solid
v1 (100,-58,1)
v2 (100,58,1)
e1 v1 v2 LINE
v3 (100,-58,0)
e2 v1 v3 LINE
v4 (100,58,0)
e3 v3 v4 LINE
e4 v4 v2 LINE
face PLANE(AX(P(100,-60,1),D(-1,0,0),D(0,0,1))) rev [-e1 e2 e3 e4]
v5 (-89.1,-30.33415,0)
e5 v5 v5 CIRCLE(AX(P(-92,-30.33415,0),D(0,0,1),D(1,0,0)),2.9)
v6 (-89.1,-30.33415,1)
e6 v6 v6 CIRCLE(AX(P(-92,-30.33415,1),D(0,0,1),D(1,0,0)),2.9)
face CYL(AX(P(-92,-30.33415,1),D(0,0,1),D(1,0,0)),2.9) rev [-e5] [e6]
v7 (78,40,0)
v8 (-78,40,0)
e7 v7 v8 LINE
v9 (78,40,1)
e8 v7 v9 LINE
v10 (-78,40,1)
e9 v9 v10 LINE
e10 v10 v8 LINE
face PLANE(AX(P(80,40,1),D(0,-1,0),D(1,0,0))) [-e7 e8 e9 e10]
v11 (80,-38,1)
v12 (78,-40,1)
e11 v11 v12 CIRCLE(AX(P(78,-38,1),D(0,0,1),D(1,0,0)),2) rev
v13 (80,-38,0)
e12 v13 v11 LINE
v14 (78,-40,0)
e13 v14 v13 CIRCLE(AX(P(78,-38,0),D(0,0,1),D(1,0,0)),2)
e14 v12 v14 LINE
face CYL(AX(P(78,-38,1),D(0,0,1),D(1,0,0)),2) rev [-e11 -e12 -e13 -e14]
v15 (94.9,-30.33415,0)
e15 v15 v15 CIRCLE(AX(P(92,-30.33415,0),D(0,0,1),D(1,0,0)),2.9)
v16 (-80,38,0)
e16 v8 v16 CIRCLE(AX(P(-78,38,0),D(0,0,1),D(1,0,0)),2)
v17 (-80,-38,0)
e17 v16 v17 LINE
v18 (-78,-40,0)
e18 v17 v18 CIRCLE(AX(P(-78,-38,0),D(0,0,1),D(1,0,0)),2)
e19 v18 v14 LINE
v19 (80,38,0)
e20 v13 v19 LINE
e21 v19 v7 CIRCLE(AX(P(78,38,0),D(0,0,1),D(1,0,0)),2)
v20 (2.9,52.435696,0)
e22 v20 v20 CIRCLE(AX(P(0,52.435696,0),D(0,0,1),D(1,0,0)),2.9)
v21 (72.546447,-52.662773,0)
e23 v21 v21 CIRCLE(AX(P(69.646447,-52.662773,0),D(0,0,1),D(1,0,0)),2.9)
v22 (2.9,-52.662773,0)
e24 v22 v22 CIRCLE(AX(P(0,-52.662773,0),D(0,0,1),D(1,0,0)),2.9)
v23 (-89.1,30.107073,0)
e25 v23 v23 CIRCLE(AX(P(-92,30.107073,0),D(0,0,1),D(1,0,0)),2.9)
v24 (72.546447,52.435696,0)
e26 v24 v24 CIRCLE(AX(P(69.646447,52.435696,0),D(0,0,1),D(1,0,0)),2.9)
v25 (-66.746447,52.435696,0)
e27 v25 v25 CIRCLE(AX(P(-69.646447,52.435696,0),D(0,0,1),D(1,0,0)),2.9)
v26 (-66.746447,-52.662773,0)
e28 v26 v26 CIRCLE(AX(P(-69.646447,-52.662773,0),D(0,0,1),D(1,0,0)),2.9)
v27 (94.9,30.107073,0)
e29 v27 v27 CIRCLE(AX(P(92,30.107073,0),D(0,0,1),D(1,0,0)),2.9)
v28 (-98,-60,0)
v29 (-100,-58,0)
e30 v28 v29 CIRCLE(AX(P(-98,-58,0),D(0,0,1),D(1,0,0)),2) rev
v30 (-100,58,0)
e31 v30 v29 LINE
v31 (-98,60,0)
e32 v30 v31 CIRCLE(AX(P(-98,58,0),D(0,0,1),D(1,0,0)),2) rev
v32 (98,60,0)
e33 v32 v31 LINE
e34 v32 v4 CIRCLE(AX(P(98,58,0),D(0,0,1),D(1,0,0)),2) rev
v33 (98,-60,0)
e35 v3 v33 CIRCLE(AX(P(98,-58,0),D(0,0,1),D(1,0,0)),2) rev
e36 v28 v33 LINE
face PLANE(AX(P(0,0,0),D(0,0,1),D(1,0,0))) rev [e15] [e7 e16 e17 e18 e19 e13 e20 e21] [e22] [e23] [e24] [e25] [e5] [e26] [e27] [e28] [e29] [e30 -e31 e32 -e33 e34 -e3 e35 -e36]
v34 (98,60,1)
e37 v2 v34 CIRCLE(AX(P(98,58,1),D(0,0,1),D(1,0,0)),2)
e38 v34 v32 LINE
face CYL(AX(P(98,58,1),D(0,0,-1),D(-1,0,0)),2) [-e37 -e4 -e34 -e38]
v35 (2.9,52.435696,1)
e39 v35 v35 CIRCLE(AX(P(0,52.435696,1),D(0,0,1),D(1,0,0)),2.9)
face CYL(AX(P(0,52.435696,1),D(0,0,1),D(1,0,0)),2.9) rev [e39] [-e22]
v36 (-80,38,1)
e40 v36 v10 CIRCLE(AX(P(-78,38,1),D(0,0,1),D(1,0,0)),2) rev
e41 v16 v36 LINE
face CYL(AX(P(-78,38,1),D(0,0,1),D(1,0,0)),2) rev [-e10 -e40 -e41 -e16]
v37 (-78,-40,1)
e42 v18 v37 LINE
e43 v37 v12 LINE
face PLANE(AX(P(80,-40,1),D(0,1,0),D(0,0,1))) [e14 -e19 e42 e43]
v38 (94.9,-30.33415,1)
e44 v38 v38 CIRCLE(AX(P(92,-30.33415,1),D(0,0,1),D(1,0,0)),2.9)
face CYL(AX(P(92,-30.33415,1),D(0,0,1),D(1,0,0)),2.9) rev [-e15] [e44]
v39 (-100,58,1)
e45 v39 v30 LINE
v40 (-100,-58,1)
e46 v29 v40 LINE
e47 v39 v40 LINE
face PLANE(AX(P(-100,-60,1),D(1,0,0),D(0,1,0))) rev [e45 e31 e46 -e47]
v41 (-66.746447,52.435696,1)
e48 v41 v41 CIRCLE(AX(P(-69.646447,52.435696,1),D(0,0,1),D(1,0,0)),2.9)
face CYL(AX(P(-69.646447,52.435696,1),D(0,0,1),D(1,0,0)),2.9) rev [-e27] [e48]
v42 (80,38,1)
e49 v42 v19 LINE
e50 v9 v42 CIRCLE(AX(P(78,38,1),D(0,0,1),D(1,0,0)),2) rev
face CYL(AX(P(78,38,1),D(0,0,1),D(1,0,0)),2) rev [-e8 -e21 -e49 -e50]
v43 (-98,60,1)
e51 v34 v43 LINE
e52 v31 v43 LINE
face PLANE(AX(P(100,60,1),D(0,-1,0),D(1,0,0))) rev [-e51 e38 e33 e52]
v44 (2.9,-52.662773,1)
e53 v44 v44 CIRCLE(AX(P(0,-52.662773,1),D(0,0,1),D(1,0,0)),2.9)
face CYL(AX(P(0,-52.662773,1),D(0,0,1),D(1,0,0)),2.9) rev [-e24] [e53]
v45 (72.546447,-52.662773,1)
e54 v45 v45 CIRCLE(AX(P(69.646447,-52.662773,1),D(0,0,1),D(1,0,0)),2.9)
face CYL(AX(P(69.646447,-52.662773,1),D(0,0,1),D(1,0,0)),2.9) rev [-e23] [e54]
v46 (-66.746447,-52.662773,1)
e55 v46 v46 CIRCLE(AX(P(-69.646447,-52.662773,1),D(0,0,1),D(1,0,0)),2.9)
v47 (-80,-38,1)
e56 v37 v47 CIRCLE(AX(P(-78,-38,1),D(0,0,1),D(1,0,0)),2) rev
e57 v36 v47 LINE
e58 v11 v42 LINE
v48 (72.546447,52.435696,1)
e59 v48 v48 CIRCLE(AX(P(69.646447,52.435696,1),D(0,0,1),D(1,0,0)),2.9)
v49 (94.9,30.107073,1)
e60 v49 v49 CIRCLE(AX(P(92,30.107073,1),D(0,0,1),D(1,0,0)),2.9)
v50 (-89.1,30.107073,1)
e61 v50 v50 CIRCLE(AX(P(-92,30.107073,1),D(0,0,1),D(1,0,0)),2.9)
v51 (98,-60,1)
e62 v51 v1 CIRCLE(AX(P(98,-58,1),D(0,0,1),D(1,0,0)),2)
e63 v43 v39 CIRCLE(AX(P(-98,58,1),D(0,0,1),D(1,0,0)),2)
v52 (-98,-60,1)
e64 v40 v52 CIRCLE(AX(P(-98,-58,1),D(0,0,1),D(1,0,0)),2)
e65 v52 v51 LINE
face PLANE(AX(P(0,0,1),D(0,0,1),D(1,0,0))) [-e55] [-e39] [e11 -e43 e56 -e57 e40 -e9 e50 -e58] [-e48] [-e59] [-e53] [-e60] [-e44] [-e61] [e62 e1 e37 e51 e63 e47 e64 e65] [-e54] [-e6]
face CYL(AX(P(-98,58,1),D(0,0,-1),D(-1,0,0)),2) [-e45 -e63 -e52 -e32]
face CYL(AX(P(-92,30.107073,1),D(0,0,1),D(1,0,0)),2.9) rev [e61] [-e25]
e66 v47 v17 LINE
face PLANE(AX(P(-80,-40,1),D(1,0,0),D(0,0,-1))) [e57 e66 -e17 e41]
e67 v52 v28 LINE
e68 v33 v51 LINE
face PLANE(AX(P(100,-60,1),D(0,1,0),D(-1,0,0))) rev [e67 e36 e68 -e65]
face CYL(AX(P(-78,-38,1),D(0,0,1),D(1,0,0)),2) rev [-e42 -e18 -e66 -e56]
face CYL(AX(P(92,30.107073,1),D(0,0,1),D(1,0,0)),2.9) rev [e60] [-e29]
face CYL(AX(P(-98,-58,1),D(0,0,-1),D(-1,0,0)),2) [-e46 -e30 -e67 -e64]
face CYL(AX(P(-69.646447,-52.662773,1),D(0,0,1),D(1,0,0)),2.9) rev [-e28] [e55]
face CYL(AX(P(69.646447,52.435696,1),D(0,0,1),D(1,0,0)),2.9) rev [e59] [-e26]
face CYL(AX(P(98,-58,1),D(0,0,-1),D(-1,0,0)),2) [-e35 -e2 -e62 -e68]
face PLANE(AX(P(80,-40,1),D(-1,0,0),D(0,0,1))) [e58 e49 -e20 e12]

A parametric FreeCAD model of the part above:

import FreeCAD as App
import Part
import Sketcher

V = App.Vector
Q = App.Units.Quantity


def edges_at(feature, points):
    """Names of the edges that pass closest to the given points."""
    edges = feature.Shape.Edges
    near = lambda p: min(range(len(edges)), key=lambda i: edges[i].distToShape(Part.Vertex(*p))[0])
    return sorted({f"Edge{near(p) + 1}" for p in points})

doc = App.newDocument("Part")
body = doc.addObject("PartDesign::Body", "Body")

sketch1 = body.newObject("Sketcher::SketchObject", "Sketch")
sketch1.AttachmentSupport = (doc.getObject("XY_Plane"), [""])
sketch1.MapMode = "FlatFace"
sketch1.addGeometry(Part.LineSegment(V(-100, 60, 0), V(-100, -60, 0)), False)
sketch1.addGeometry(Part.LineSegment(V(-100, -60, 0), V(100, -60, 0)), False)
sketch1.addGeometry(Part.LineSegment(V(100, -60, 0), V(100, 60, 0)), False)
sketch1.addGeometry(Part.LineSegment(V(100, 60, 0), V(-100, 60, 0)), False)
sketch1.addGeometry(Part.LineSegment(V(80, -40, 0), V(-80, -40, 0)), False)
sketch1.addGeometry(Part.LineSegment(V(-80, -40, 0), V(-80, 40, 0)), False)
sketch1.addGeometry(Part.LineSegment(V(-80, 40, 0), V(80, 40, 0)), False)
sketch1.addGeometry(Part.LineSegment(V(80, 40, 0), V(80, -40, 0)), False)
sketch1.addConstraint(Sketcher.Constraint("Coincident", 0, 2, 1, 1))
sketch1.addConstraint(Sketcher.Constraint("Coincident", 1, 2, 2, 1))
sketch1.addConstraint(Sketcher.Constraint("Coincident", 2, 2, 3, 1))
sketch1.addConstraint(Sketcher.Constraint("Coincident", 3, 2, 0, 1))
sketch1.addConstraint(Sketcher.Constraint("Coincident", 4, 2, 5, 1))
sketch1.addConstraint(Sketcher.Constraint("Coincident", 5, 2, 6, 1))
sketch1.addConstraint(Sketcher.Constraint("Coincident", 6, 2, 7, 1))
sketch1.addConstraint(Sketcher.Constraint("Coincident", 7, 2, 4, 1))
sketch1.addConstraint(Sketcher.Constraint("Vertical", 0))
sketch1.addConstraint(Sketcher.Constraint("Horizontal", 1))
sketch1.addConstraint(Sketcher.Constraint("Vertical", 2))
sketch1.addConstraint(Sketcher.Constraint("Horizontal", 3))
sketch1.addConstraint(Sketcher.Constraint("Horizontal", 4))
sketch1.addConstraint(Sketcher.Constraint("Vertical", 5))
sketch1.addConstraint(Sketcher.Constraint("Horizontal", 6))
sketch1.addConstraint(Sketcher.Constraint("Vertical", 7))
sketch1.addConstraint(Sketcher.Constraint("Symmetric", 0, 2, 2, 2, -1, 1))
sketch1.addConstraint(Sketcher.Constraint("Symmetric", 4, 2, 6, 2, -1, 1))
sketch1.addConstraint(Sketcher.Constraint("DistanceX", 1, 1, 1, 2, Q("200 mm")))
sketch1.addConstraint(Sketcher.Constraint("DistanceX", 4, 2, 4, 1, Q("160 mm")))
sketch1.addConstraint(Sketcher.Constraint("DistanceY", 0, 2, 0, 1, Q("120 mm")))
sketch1.addConstraint(Sketcher.Constraint("DistanceY", 5, 1, 5, 2, Q("80 mm")))
pad1 = body.newObject("PartDesign::Pad", "Pad")
pad1.Profile = sketch1
pad1.Length = 1
doc.recompute()

fillet = body.newObject("PartDesign::Fillet", "Fillet")
fillet.Base = (pad1, edges_at(pad1, [
    (-80, 40, 0.5),
    (-80, -40, 0.5),
    (80, -40, 0.5),
    (80, 40, 0.5),
    (-100, 60, 0.5),
    (100, 60, 0.5),
    (100, -60, 0.5),
    (-100, -60, 0.5),
]))
fillet.Radius = 2

sketch2 = body.newObject("Sketcher::SketchObject", "Sketch001")
sketch2.AttachmentSupport = (doc.getObject("XY_Plane"), [""])
sketch2.MapMode = "FlatFace"
sketch2.AttachmentOffset = App.Placement(V(0, 0, 1), App.Rotation())
sketch2.addGeometry(Part.Circle(V(92, -30.3, 0), V(0, 0, 1), 2.9), False)
sketch2.addGeometry(Part.Circle(V(69.6, -52.7, 0), V(0, 0, 1), 2.9), False)
sketch2.addGeometry(Part.Circle(V(92, 30.1, 0), V(0, 0, 1), 2.9), False)
sketch2.addGeometry(Part.Circle(V(0, -52.7, 0), V(0, 0, 1), 2.9), False)
sketch2.addGeometry(Part.Circle(V(69.6, 52.4, 0), V(0, 0, 1), 2.9), False)
sketch2.addGeometry(Part.Circle(V(0, 52.4, 0), V(0, 0, 1), 2.9), False)
sketch2.addGeometry(Part.Circle(V(-69.6, 52.4, 0), V(0, 0, 1), 2.9), False)
sketch2.addGeometry(Part.Circle(V(-92, 30.1, 0), V(0, 0, 1), 2.9), False)
sketch2.addGeometry(Part.Circle(V(-92, -30.3, 0), V(0, 0, 1), 2.9), False)
sketch2.addGeometry(Part.Circle(V(-69.6, -52.7, 0), V(0, 0, 1), 2.9), False)
sketch2.addConstraint(Sketcher.Constraint("Equal", 0, 1))
sketch2.addConstraint(Sketcher.Constraint("Equal", 1, 2))
sketch2.addConstraint(Sketcher.Constraint("Equal", 2, 3))
sketch2.addConstraint(Sketcher.Constraint("Equal", 3, 4))
sketch2.addConstraint(Sketcher.Constraint("Equal", 4, 5))
sketch2.addConstraint(Sketcher.Constraint("Equal", 5, 6))
sketch2.addConstraint(Sketcher.Constraint("Equal", 6, 7))
sketch2.addConstraint(Sketcher.Constraint("Equal", 7, 8))
sketch2.addConstraint(Sketcher.Constraint("Equal", 8, 9))
sketch2.addConstraint(Sketcher.Constraint("Symmetric", 4, 3, 6, 3, -2))
sketch2.addConstraint(Sketcher.Constraint("Symmetric", 2, 3, 7, 3, -2))
sketch2.addConstraint(Sketcher.Constraint("Symmetric", 0, 3, 8, 3, -2))
sketch2.addConstraint(Sketcher.Constraint("Symmetric", 1, 3, 9, 3, -2))
sketch2.addConstraint(Sketcher.Constraint("PointOnObject", 3, 3, -2))
sketch2.addConstraint(Sketcher.Constraint("PointOnObject", 5, 3, -2))
sketch2.addConstraint(Sketcher.Constraint("Horizontal", 1, 3, 3, 3))
sketch2.addConstraint(Sketcher.Constraint("Horizontal", 4, 3, 5, 3))
sketch2.addConstraint(Sketcher.Constraint("Vertical", 0, 3, 2, 3))
sketch2.addConstraint(Sketcher.Constraint("Vertical", 1, 3, 4, 3))
sketch2.addConstraint(Sketcher.Constraint("Diameter", 0, Q("5.8 mm")))
sketch2.addConstraint(Sketcher.Constraint("DistanceX", -1, 1, 0, 3, Q("92 mm")))
sketch2.addConstraint(Sketcher.Constraint("DistanceY", 0, 3, -1, 1, Q("30.33415 mm")))
sketch2.addConstraint(Sketcher.Constraint("DistanceY", 1, 3, 4, 3, Q("105.098469 mm")))
sketch2.addConstraint(Sketcher.Constraint("DistanceX", -1, 1, 1, 3, Q("69.646447 mm")))
sketch2.addConstraint(Sketcher.Constraint("DistanceY", 1, 3, -1, 1, Q("52.662773 mm")))
sketch2.addConstraint(Sketcher.Constraint("DistanceY", -1, 1, 2, 3, Q("30.107073 mm")))
doc.recompute()
hole = body.newObject("PartDesign::Hole", "Hole")
hole.Profile = sketch2
hole.ThreadType = "None"
hole.Diameter = 5.8
hole.DepthType = "ThroughAll"

doc.recompute()
